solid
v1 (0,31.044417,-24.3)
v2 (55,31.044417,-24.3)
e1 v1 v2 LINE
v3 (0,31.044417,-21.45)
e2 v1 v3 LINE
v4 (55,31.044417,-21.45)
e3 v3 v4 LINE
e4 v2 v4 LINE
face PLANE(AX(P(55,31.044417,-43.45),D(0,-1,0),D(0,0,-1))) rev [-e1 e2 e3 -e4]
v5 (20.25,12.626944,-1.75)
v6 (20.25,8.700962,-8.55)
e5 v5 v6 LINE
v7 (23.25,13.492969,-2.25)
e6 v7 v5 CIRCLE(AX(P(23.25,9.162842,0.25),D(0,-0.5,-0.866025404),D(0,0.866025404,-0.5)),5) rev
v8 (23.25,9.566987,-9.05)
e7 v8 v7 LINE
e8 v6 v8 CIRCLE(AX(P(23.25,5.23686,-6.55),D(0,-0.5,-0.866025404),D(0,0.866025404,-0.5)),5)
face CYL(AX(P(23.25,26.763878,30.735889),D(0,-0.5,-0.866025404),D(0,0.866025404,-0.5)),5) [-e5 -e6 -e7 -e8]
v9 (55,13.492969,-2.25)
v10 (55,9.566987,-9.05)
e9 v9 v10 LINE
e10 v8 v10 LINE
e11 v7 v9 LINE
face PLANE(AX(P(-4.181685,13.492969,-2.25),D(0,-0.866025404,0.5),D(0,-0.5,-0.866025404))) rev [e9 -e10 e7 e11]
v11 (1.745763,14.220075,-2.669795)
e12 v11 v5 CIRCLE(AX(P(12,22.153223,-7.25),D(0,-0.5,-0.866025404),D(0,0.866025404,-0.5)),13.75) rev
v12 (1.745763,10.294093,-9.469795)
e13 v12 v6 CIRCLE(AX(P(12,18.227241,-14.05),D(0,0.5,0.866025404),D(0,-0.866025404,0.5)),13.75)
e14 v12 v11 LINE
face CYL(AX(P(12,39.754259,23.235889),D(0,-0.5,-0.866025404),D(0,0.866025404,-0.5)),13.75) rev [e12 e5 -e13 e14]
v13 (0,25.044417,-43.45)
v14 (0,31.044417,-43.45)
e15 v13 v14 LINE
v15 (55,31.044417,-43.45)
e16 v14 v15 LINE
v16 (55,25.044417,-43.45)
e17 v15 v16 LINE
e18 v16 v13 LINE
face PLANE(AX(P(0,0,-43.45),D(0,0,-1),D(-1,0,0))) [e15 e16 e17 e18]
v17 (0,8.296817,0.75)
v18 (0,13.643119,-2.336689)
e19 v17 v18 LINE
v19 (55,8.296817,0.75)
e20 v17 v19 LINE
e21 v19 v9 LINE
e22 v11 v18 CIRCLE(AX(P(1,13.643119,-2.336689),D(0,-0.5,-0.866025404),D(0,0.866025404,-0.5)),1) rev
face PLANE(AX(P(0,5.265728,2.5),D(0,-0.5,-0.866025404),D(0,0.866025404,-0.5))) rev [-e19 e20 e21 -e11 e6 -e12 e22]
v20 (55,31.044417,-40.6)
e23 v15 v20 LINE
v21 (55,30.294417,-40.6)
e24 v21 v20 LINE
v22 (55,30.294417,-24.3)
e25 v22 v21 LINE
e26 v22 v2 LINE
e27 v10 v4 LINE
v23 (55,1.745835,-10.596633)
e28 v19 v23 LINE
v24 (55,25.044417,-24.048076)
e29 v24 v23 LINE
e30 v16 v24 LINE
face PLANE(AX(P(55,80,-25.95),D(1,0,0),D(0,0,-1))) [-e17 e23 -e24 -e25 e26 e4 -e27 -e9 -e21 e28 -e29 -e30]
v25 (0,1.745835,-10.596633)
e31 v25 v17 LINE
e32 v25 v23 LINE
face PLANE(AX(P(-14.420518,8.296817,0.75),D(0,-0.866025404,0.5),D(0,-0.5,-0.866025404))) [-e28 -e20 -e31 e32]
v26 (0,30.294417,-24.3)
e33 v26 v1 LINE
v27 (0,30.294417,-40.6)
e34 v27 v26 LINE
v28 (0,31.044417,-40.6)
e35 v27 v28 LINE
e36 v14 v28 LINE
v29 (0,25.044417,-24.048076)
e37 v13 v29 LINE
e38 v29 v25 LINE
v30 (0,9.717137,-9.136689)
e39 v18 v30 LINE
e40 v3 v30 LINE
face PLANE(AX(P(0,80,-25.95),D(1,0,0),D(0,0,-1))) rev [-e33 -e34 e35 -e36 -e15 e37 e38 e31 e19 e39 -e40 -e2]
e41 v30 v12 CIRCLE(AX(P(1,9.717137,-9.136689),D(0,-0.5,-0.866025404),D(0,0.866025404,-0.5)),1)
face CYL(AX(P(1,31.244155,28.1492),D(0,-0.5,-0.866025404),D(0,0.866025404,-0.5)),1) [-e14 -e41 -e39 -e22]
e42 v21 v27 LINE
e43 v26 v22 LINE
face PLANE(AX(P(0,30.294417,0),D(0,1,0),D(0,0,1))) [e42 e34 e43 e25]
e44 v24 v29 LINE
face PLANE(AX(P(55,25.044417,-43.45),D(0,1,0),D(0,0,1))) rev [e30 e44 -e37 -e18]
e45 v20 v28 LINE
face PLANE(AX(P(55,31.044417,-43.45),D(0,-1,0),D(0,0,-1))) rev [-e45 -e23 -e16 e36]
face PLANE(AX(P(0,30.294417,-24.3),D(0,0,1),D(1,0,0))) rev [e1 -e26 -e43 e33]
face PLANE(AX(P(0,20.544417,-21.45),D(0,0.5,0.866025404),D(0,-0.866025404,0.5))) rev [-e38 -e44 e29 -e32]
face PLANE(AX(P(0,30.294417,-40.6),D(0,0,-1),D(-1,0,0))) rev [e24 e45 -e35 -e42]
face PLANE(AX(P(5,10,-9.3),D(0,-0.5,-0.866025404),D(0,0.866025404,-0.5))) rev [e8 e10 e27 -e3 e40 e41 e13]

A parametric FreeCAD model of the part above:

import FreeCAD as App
import Part
import Sketcher
Q = App.Units.Quantity


def edges_at(feature, points):
    """Names of the edges that pass closest to the given points."""
    edges = feature.Shape.Edges
    near = lambda p: min(range(len(edges)), key=lambda i: edges[i].distToShape(Part.Vertex(*p))[0])
    return sorted({f"Edge{near(p) + 1}" for p in points})

doc = App.newDocument("Part")
body = doc.addObject("PartDesign::Body", "Body")

# Sketch on XZ plane
sketch1 = doc.addObject("Sketcher::SketchObject", "Sketch")
body.addObject(sketch1)
sketch1.AttachmentSupport = (doc.XZ_Plane, [""])
sketch1.MapMode = "FlatFace"
sketch1.addGeometry([
    Part.LineSegment(App.Vector(55, -26, 0), App.Vector(0, -26, 0)),
    Part.LineSegment(App.Vector(0, -26, 0), App.Vector(0, 0, 0)),
    Part.LineSegment(App.Vector(0, 0, 0), App.Vector(55, 0, 0)),
    Part.LineSegment(App.Vector(55, 0, 0), App.Vector(55, -26, 0)),
], False)
sketch1.addConstraint([
    Sketcher.Constraint("Coincident", 0, 2, 1, 1),
    Sketcher.Constraint("Coincident", 1, 2, 2, 1),
    Sketcher.Constraint("Coincident", 2, 2, 3, 1),
    Sketcher.Constraint("Coincident", 3, 2, 0, 1),
    Sketcher.Constraint("Horizontal", 0),
    Sketcher.Constraint("Vertical", 1),
    Sketcher.Constraint("Horizontal", 2),
    Sketcher.Constraint("Vertical", 3),
    Sketcher.Constraint("Coincident", 1, 2, -1, 1),
    Sketcher.Constraint("DistanceX", 0, 2, 0, 1, 55.0),
    Sketcher.Constraint("DistanceY", 1, 1, 1, 2, 25.95),
])
pad1 = doc.addObject("PartDesign::Pad", "Pad")
body.addObject(pad1)
pad1.Profile = sketch1
pad1.Length = 80
pad1.Reversed = True

# Sketch on YZ plane
sketch2 = doc.addObject("Sketcher::SketchObject", "Sketch001")
body.addObject(sketch2)
sketch2.AttachmentSupport = (doc.YZ_Plane, [""])
sketch2.MapMode = "FlatFace"
sketch2.AttachmentOffset = App.Placement(App.Vector(0, 0, 55), App.Rotation())
sketch2.addGeometry([
    Part.LineSegment(App.Vector(147, 27, 0), App.Vector(60, 77, 0)),
    Part.LineSegment(App.Vector(60, 77, 0), App.Vector(10, -9, 0)),
    Part.LineSegment(App.Vector(10, -9, 0), App.Vector(97, -59, 0)),
    Part.LineSegment(App.Vector(97, -59, 0), App.Vector(147, 27, 0)),
], False)
sketch2.addConstraint([
    Sketcher.Constraint("Coincident", 0, 2, 1, 1),
    Sketcher.Constraint("Coincident", 1, 2, 2, 1),
    Sketcher.Constraint("Coincident", 2, 2, 3, 1),
    Sketcher.Constraint("Coincident", 3, 2, 0, 1),
    Sketcher.Constraint("Perpendicular", 0, 1),
    Sketcher.Constraint("Perpendicular", 1, 2),
    Sketcher.Constraint("Perpendicular", 2, 3),
    Sketcher.Constraint("Equal", 0, 1),
    Sketcher.Constraint("Angle", 0, Q("150 deg")),
    Sketcher.Constraint("Distance", 0, 100.0),
    Sketcher.Constraint("DistanceX", -1, 1, 0, 2, 60.0),
    Sketcher.Constraint("DistanceY", 1, 2, -1, 1, 9.3),
])
pocket1 = doc.addObject("PartDesign::Pocket", "Pocket")
body.addObject(pocket1)
pocket1.Profile = sketch2
pocket1.Length = 50

# Sketch on YZ plane
sketch3 = doc.addObject("Sketcher::SketchObject", "Sketch002")
body.addObject(sketch3)
sketch3.AttachmentSupport = (doc.YZ_Plane, [""])
sketch3.MapMode = "FlatFace"
sketch3.AttachmentOffset = App.Placement(App.Vector(0, 0, 55), App.Rotation())
sketch3.addGeometry([
    Part.LineSegment(App.Vector(19, 6, 0), App.Vector(10, 11, 0)),
    Part.LineSegment(App.Vector(10, 11, 0), App.Vector(5, 2, 0)),
    Part.LineSegment(App.Vector(5, 2, 0), App.Vector(14, -2, 0)),
    Part.LineSegment(App.Vector(14, -2, 0), App.Vector(19, 6, 0)),
], False)
sketch3.addConstraint([
    Sketcher.Constraint("Coincident", 0, 2, 1, 1),
    Sketcher.Constraint("Coincident", 1, 2, 2, 1),
    Sketcher.Constraint("Coincident", 2, 2, 3, 1),
    Sketcher.Constraint("Coincident", 3, 2, 0, 1),
    Sketcher.Constraint("Perpendicular", 0, 1),
    Sketcher.Constraint("Perpendicular", 1, 2),
    Sketcher.Constraint("Perpendicular", 2, 3),
    Sketcher.Constraint("Equal", 0, 1),
    Sketcher.Constraint("Angle", 0, Q("150 deg")),
    Sketcher.Constraint("Distance", 0, 10.0),
    Sketcher.Constraint("DistanceY", -1, 1, 1, 2, 2.5),
    Sketcher.Constraint("DistanceX", -1, 1, 2, 2, 13.925982),
])
pocket2 = doc.addObject("PartDesign::Pocket", "Pocket001")
body.addObject(pocket2)
pocket2.Profile = sketch3
pocket2.Type = "ThroughAll"

# Sketch on YZ plane
sketch4 = doc.addObject("Sketcher::SketchObject", "Sketch003")
body.addObject(sketch4)
sketch4.AttachmentSupport = (doc.YZ_Plane, [""])
sketch4.MapMode = "FlatFace"
sketch4.AttachmentOffset = App.Placement(App.Vector(0, 0, 55), App.Rotation())
sketch4.addGeometry([
    Part.LineSegment(App.Vector(13.9, -2.5, 0), App.Vector(10, -9.3, 0)),
    Part.LineSegment(App.Vector(10, -9.3, 0), App.Vector(10.9, -9.8, 0)),
    Part.LineSegment(App.Vector(10.9, -9.8, 0), App.Vector(14.8, -3, 0)),
    Part.LineSegment(App.Vector(14.8, -3, 0), App.Vector(13.9, -2.5, 0)),
], False)
sketch4.addConstraint([
    Sketcher.Constraint("Coincident", 0, 2, 1, 1),
    Sketcher.Constraint("Coincident", 1, 2, 2, 1),
    Sketcher.Constraint("Coincident", 2, 2, 3, 1),
    Sketcher.Constraint("Coincident", 3, 2, 0, 1),
    Sketcher.Constraint("Perpendicular", 0, 1),
    Sketcher.Constraint("Perpendicular", 1, 2),
    Sketcher.Constraint("Perpendicular", 2, 3),
    Sketcher.Constraint("Angle", 0, Q("-120 deg")),
    Sketcher.Constraint("Distance", 1, 1.0),
    Sketcher.Constraint("DistanceX", -1, 1, 0, 2, 10.0),
    Sketcher.Constraint("DistanceY", 2, 2, -1, 1, 3.0),
    Sketcher.Constraint("DistanceY", 0, 2, -1, 1, 9.3),
])
pad2 = doc.addObject("PartDesign::Pad", "Pad001")
body.addObject(pad2)
pad2.Profile = sketch4
pad2.Type = "UpToFirst"
pad2.Reversed = True

# Sketch on YZ plane
sketch5 = doc.addObject("Sketcher::SketchObject", "Sketch004")
body.addObject(sketch5)
sketch5.AttachmentSupport = (doc.YZ_Plane, [""])
sketch5.MapMode = "FlatFace"
sketch5.AttachmentOffset = App.Placement(App.Vector(0, 0, 55), App.Rotation())
sketch5.addGeometry([
    Part.LineSegment(App.Vector(14.8, -3, 0), App.Vector(13.5, -2.2, 0)),
    Part.LineSegment(App.Vector(13.5, -2.2, 0), App.Vector(9.6, -9.1, 0)),
    Part.LineSegment(App.Vector(9.6, -9.1, 0), App.Vector(10.9, -9.8, 0)),
    Part.LineSegment(App.Vector(10.9, -9.8, 0), App.Vector(14.8, -3, 0)),
], False)
sketch5.addConstraint([
    Sketcher.Constraint("Coincident", 0, 2, 1, 1),
    Sketcher.Constraint("Coincident", 1, 2, 2, 1),
    Sketcher.Constraint("Coincident", 2, 2, 3, 1),
    Sketcher.Constraint("Coincident", 3, 2, 0, 1),
    Sketcher.Constraint("Perpendicular", 0, 1),
    Sketcher.Constraint("Perpendicular", 1, 2),
    Sketcher.Constraint("Perpendicular", 2, 3),
    Sketcher.Constraint("Angle", 0, Q("150 deg")),
    Sketcher.Constraint("DistanceY", 3, 2, -1, 1, 3.0),
    Sketcher.Constraint("Distance", 0, 1.5),
    Sketcher.Constraint("DistanceY", 2, 2, -1, 1, 9.8),
    Sketcher.Constraint("DistanceX", -1, 1, 0, 2, 13.492969),
])
pocket3 = doc.addObject("PartDesign::Pocket", "Pocket002")
body.addObject(pocket3)
pocket3.Profile = sketch5
pocket3.Length = 50

# Sketch on an angled plane
sketch6 = doc.addObject("Sketcher::SketchObject", "Sketch005")
body.addObject(sketch6)
sketch6.Placement = App.Placement(App.Vector(0, -1.527018, -2.644873), App.Rotation(App.Vector(1, 0, 0), App.Vector(0, 0.866025404, -0.5), App.Vector(0, 0.5, 0.866025404), "ZXY"))
sketch6.addGeometry(Part.Circle(App.Vector(12, 23, 0), App.Vector(0, 0, 1), 14), False)
sketch6.addConstraint([
    Sketcher.Constraint("Diameter", 0, 27.5),
    Sketcher.Constraint("DistanceX", -1, 1, 0, 3, 12.0),
    Sketcher.Constraint("DistanceY", -1, 1, 0, 3, 22.810254),
])
pocket4 = doc.addObject("PartDesign::Pocket", "Pocket003")
body.addObject(pocket4)
pocket4.Profile = sketch6
pocket4.Type = "ThroughAll"
pocket4.Reversed = True

# Sketch on YZ plane
sketch7 = doc.addObject("Sketcher::SketchObject", "Sketch006")
body.addObject(sketch7)
sketch7.AttachmentSupport = (doc.YZ_Plane, [""])
sketch7.MapMode = "FlatFace"
sketch7.AttachmentOffset = App.Placement(App.Vector(0, 0, 55), App.Rotation())
sketch7.addGeometry([
    Part.LineSegment(App.Vector(10, 0, 0), App.Vector(16, -4, 0)),  # 0
    Part.LineSegment(App.Vector(16, -4, 0), App.Vector(12, -11, 0)),  # 1
    Part.LineSegment(App.Vector(12, -11, 0), App.Vector(110, -67, 0)),  # 2
    Part.LineSegment(App.Vector(110, -67, 0), App.Vector(110, 0, 0)),  # 3
    Part.LineSegment(App.Vector(110, 0, 0), App.Vector(10, 0, 0)),  # 4
], False)
sketch7.addConstraint([
    Sketcher.Constraint("Coincident", 0, 2, 1, 1),
    Sketcher.Constraint("Coincident", 1, 2, 2, 1),
    Sketcher.Constraint("Coincident", 2, 2, 3, 1),
    Sketcher.Constraint("Coincident", 3, 2, 4, 1),
    Sketcher.Constraint("Coincident", 4, 2, 0, 1),
    Sketcher.Constraint("Vertical", 3),
    Sketcher.Constraint("Horizontal", 4),
    Sketcher.Constraint("PointOnObject", 3, 2, -1),
    Sketcher.Constraint("Perpendicular", 0, 1),
    Sketcher.Constraint("Perpendicular", 1, 2),
    Sketcher.Constraint("DistanceX", 4, 2, 4, 1, 100.0),
    Sketcher.Constraint("Angle", 0, Q("-30 deg")),
    Sketcher.Constraint("DistanceY", 1, 2, 0, 2, 6.8),
    Sketcher.Constraint("Distance", 0, 7.787139),
    Sketcher.Constraint("DistanceX", -1, 1, 0, 2, 16.339715),
])
pocket5 = doc.addObject("PartDesign::Pocket", "Pocket004")
body.addObject(pocket5)
pocket5.Profile = sketch7
pocket5.Type = "ThroughAll"

# Sketch on XZ plane
sketch8 = doc.addObject("Sketcher::SketchObject", "Sketch007")
body.addObject(sketch8)
sketch8.AttachmentSupport = (doc.XZ_Plane, [""])
sketch8.MapMode = "FlatFace"
sketch8.addGeometry(Part.Circle(App.Vector(26, -27, 0), App.Vector(0, 0, 1), 6), False)
sketch8.addConstraint([
    Sketcher.Constraint("Diameter", 0, 12.0),
    Sketcher.Constraint("DistanceX", -1, 1, 0, 3, 25.75),
    Sketcher.Constraint("DistanceY", 0, 3, -1, 1, 27.45),
])
pocket6 = doc.addObject("PartDesign::Pocket", "Pocket005")
body.addObject(pocket6)
pocket6.Profile = sketch8
pocket6.Type = "ThroughAll"

# Sketch on YZ plane
sketch9 = doc.addObject("Sketcher::SketchObject", "Sketch008")
body.addObject(sketch9)
sketch9.AttachmentSupport = (doc.YZ_Plane, [""])
sketch9.MapMode = "FlatFace"
sketch9.AttachmentOffset = App.Placement(App.Vector(0, 0, 55), App.Rotation())
sketch9.addGeometry([
    Part.LineSegment(App.Vector(31, -21.4, 0), App.Vector(31, -25.9, 0)),
    Part.LineSegment(App.Vector(31, -25.9, 0), App.Vector(38.8, -25.9, 0)),
    Part.LineSegment(App.Vector(38.8, -25.9, 0), App.Vector(31, -21.4, 0)),
], False)
sketch9.addConstraint([
    Sketcher.Constraint("Coincident", 0, 2, 1, 1),
    Sketcher.Constraint("Coincident", 1, 2, 2, 1),
    Sketcher.Constraint("Coincident", 2, 2, 0, 1),
    Sketcher.Constraint("Vertical", 0),
    Sketcher.Constraint("Horizontal", 1),
    Sketcher.Constraint("Angle", 2, Q("150 deg")),
    Sketcher.Constraint("Distance", 2, 9.0),
    Sketcher.Constraint("DistanceY", 0, 2, -1, 1, 25.95),
    Sketcher.Constraint("DistanceX", -1, 1, 0, 2, 31.044417),
])
pocket7 = doc.addObject("PartDesign::Pocket", "Pocket006")
body.addObject(pocket7)
pocket7.Profile = sketch9
pocket7.Type = "ThroughAll"

# Sketch on XZ plane
sketch10 = doc.addObject("Sketcher::SketchObject", "Sketch009")
body.addObject(sketch10)
sketch10.AttachmentSupport = (doc.XZ_Plane, [""])
sketch10.MapMode = "FlatFace"
sketch10.addGeometry([
    Part.LineSegment(App.Vector(0, -21.4, 0), App.Vector(55, -21.4, 0)),
    Part.LineSegment(App.Vector(55, -21.4, 0), App.Vector(55, -25.9, 0)),
    Part.LineSegment(App.Vector(55, -25.9, 0), App.Vector(0, -25.9, 0)),
    Part.LineSegment(App.Vector(0, -25.9, 0), App.Vector(0, -21.4, 0)),
], False)
sketch10.addConstraint([
    Sketcher.Constraint("Coincident", 0, 2, 1, 1),
    Sketcher.Constraint("Coincident", 1, 2, 2, 1),
    Sketcher.Constraint("Coincident", 2, 2, 3, 1),
    Sketcher.Constraint("Coincident", 3, 2, 0, 1),
    Sketcher.Constraint("Horizontal", 0),
    Sketcher.Constraint("Vertical", 1),
    Sketcher.Constraint("Horizontal", 2),
    Sketcher.Constraint("Vertical", 3),
    Sketcher.Constraint("PointOnObject", 2, 2, -2),
    Sketcher.Constraint("DistanceX", 0, 1, 0, 2, 55.0),
    Sketcher.Constraint("DistanceY", 1, 2, 1, 1, 4.5),
    Sketcher.Constraint("DistanceY", 0, 2, -1, 1, 21.45),
])
pocket8 = doc.addObject("PartDesign::Pocket", "Pocket007")
body.addObject(pocket8)
pocket8.Profile = sketch10
pocket8.Type = "ThroughAll"
doc.recompute()

fillet = doc.addObject("PartDesign::Fillet", "Fillet")
body.addObject(fillet)
fillet.Base = (pocket8, edges_at(pocket8, [(0, 14.377, -7.294)]))
fillet.Radius = 1
doc.recompute()

fillet2 = doc.addObject("PartDesign::Fillet", "Fillet001")
body.addObject(fillet2)
fillet2.Base = (fillet, edges_at(fillet, [(21.437, 11.53, -5.65)]))
fillet2.Radius = 5

# Sketch on YZ plane
sketch11 = doc.addObject("Sketcher::SketchObject", "Sketch010")
body.addObject(sketch11)
sketch11.AttachmentSupport = (doc.YZ_Plane, [""])
sketch11.MapMode = "FlatFace"
sketch11.AttachmentOffset = App.Placement(App.Vector(0, 0, 55), App.Rotation())
sketch11.addGeometry([
    Part.LineSegment(App.Vector(21, -21, 0), App.Vector(3, -11, 0)),  # 0
    Part.LineSegment(App.Vector(3, -11, 0), App.Vector(10, 0, 0)),  # 1
    Part.LineSegment(App.Vector(10, 0, 0), App.Vector(0, 0, 0)),  # 2
    Part.LineSegment(App.Vector(0, 0, 0), App.Vector(0, -21, 0)),  # 3
    Part.LineSegment(App.Vector(0, -21, 0), App.Vector(21, -21, 0)),  # 4
], False)
sketch11.addConstraint([
    Sketcher.Constraint("Coincident", 0, 2, 1, 1),
    Sketcher.Constraint("Coincident", 1, 2, 2, 1),
    Sketcher.Constraint("Coincident", 2, 2, 3, 1),
    Sketcher.Constraint("Coincident", 3, 2, 4, 1),
    Sketcher.Constraint("Coincident", 4, 2, 0, 1),
    Sketcher.Constraint("Horizontal", 2),
    Sketcher.Constraint("Vertical", 3),
    Sketcher.Constraint("Horizontal", 4),
    Sketcher.Constraint("Coincident", 2, 2, -1, 1),
    Sketcher.Constraint("Perpendicular", 0, 1),
    Sketcher.Constraint("Angle", 0, Q("150 deg")),
    Sketcher.Constraint("DistanceY", 3, 2, 3, 1, 21.45),
    Sketcher.Constraint("DistanceX", 2, 2, 2, 1, 9.595855),
    Sketcher.Constraint("DistanceX", 4, 1, 4, 2, 20.544417),
])
pocket9 = doc.addObject("PartDesign::Pocket", "Pocket008")
body.addObject(pocket9)
pocket9.Profile = sketch11
pocket9.Type = "ThroughAll"

# Sketch on XY plane
sketch12 = doc.addObject("Sketcher::SketchObject", "Sketch011")
body.addObject(sketch12)
sketch12.AttachmentSupport = (doc.XY_Plane, [""])
sketch12.MapMode = "FlatFace"
sketch12.AttachmentOffset = App.Placement(App.Vector(0, 0, -21.45), App.Rotation())
sketch12.addGeometry([
    Part.LineSegment(App.Vector(0, 31, 0), App.Vector(55, 31, 0)),
    Part.LineSegment(App.Vector(55, 31, 0), App.Vector(55, 25, 0)),
    Part.LineSegment(App.Vector(55, 25, 0), App.Vector(0, 25, 0)),
    Part.LineSegment(App.Vector(0, 25, 0), App.Vector(0, 31, 0)),
], False)
sketch12.addConstraint([
    Sketcher.Constraint("Coincident", 0, 2, 1, 1),
    Sketcher.Constraint("Coincident", 1, 2, 2, 1),
    Sketcher.Constraint("Coincident", 2, 2, 3, 1),
    Sketcher.Constraint("Coincident", 3, 2, 0, 1),
    Sketcher.Constraint("Horizontal", 0),
    Sketcher.Constraint("Vertical", 1),
    Sketcher.Constraint("Horizontal", 2),
    Sketcher.Constraint("Vertical", 3),
    Sketcher.Constraint("PointOnObject", 2, 2, -2),
    Sketcher.Constraint("DistanceX", 0, 1, 0, 2, 55.0),
    Sketcher.Constraint("DistanceY", 1, 2, 1, 1, 6.0),
    Sketcher.Constraint("DistanceY", -1, 1, 0, 2, 31.044417),
])
pad3 = doc.addObject("PartDesign::Pad", "Pad002")
body.addObject(pad3)
pad3.Profile = sketch12
pad3.Length = 22
pad3.Reversed = True

# Sketch on YZ plane
sketch13 = doc.addObject("Sketcher::SketchObject", "Sketch012")
body.addObject(sketch13)
sketch13.AttachmentSupport = (doc.YZ_Plane, [""])
sketch13.MapMode = "FlatFace"
sketch13.AttachmentOffset = App.Placement(App.Vector(0, 0, 55), App.Rotation())
sketch13.addGeometry([
    Part.LineSegment(App.Vector(12, -16, 0), App.Vector(31, -28, 0)),
    Part.LineSegment(App.Vector(31, -28, 0), App.Vector(31, -21, 0)),
    Part.LineSegment(App.Vector(31, -21, 0), App.Vector(14, -12, 0)),
    Part.LineSegment(App.Vector(14, -12, 0), App.Vector(12, -16, 0)),
], False)
sketch13.addConstraint([
    Sketcher.Constraint("Coincident", 0, 2, 1, 1),
    Sketcher.Constraint("Coincident", 1, 2, 2, 1),
    Sketcher.Constraint("Coincident", 2, 2, 3, 1),
    Sketcher.Constraint("Coincident", 3, 2, 0, 1),
    Sketcher.Constraint("Vertical", 1),
    Sketcher.Constraint("Parallel", 0, 2),
    Sketcher.Constraint("Perpendicular", 2, 3),
    Sketcher.Constraint("Angle", 0, Q("-30 deg")),
    Sketcher.Constraint("Distance", 3, 5.25),
    Sketcher.Constraint("DistanceY", 1, 2, -1, 1, 21.45),
    Sketcher.Constraint("DistanceY", 0, 2, 3, 2, 11.113861),
    Sketcher.Constraint("DistanceX", -1, 1, 0, 2, 31.044417),
])
pad4 = doc.addObject("PartDesign::Pad", "Pad003")
body.addObject(pad4)
pad4.Profile = sketch13
pad4.Length = 55
pad4.Reversed = True

# Sketch on XZ plane
sketch14 = doc.addObject("Sketcher::SketchObject", "Sketch013")
body.addObject(sketch14)
sketch14.AttachmentSupport = (doc.XZ_Plane, [""])
sketch14.MapMode = "FlatFace"
sketch14.AttachmentOffset = App.Placement(App.Vector(0, 0, -31.044417), App.Rotation())
sketch14.addGeometry([
    Part.LineSegment(App.Vector(55, -41, 0), App.Vector(0, -41, 0)),
    Part.LineSegment(App.Vector(0, -41, 0), App.Vector(0, -24, 0)),
    Part.LineSegment(App.Vector(0, -24, 0), App.Vector(55, -24, 0)),
    Part.LineSegment(App.Vector(55, -24, 0), App.Vector(55, -41, 0)),
], False)
sketch14.addConstraint([
    Sketcher.Constraint("Coincident", 0, 2, 1, 1),
    Sketcher.Constraint("Coincident", 1, 2, 2, 1),
    Sketcher.Constraint("Coincident", 2, 2, 3, 1),
    Sketcher.Constraint("Coincident", 3, 2, 0, 1),
    Sketcher.Constraint("Horizontal", 0),
    Sketcher.Constraint("Vertical", 1),
    Sketcher.Constraint("Horizontal", 2),
    Sketcher.Constraint("Vertical", 3),
    Sketcher.Constraint("PointOnObject", 0, 2, -2),
    Sketcher.Constraint("DistanceX", 0, 2, 0, 1, 55.0),
    Sketcher.Constraint("DistanceY", 1, 1, 1, 2, 16.3),
    Sketcher.Constraint("DistanceY", 0, 2, -1, 1, 40.6),
])
pocket10 = doc.addObject("PartDesign::Pocket", "Pocket009")
body.addObject(pocket10)
pocket10.Profile = sketch14
pocket10.Length = 0.75
pocket10.Reversed = True

# Sketch on YZ plane
sketch15 = doc.addObject("Sketcher::SketchObject", "Sketch014")
body.addObject(sketch15)
sketch15.AttachmentSupport = (doc.YZ_Plane, [""])
sketch15.MapMode = "FlatFace"
sketch15.AttachmentOffset = App.Placement(App.Vector(0, 0, 55), App.Rotation())
sketch15.addGeometry([
    Part.LineSegment(App.Vector(9.6, 0, 0), App.Vector(8.3, 0.8, 0)),
    Part.LineSegment(App.Vector(8.3, 0.8, 0), App.Vector(1.7, -10.6, 0)),
    Part.LineSegment(App.Vector(1.7, -10.6, 0), App.Vector(3, -11.3, 0)),
    Part.LineSegment(App.Vector(3, -11.3, 0), App.Vector(9.6, 0, 0)),
], False)
sketch15.addConstraint([
    Sketcher.Constraint("Coincident", 0, 2, 1, 1),
    Sketcher.Constraint("Coincident", 1, 2, 2, 1),
    Sketcher.Constraint("Coincident", 2, 2, 3, 1),
    Sketcher.Constraint("Coincident", 3, 2, 0, 1),
    Sketcher.Constraint("PointOnObject", 3, 2, -1),
    Sketcher.Constraint("Perpendicular", 0, 1),
    Sketcher.Constraint("Perpendicular", 1, 2),
    Sketcher.Constraint("Perpendicular", 2, 3),
    Sketcher.Constraint("Angle", 0, Q("150 deg")),
    Sketcher.Constraint("Distance", 0, 1.5),
    Sketcher.Constraint("DistanceX", 1, 2, 0, 2, 6.550982),
    Sketcher.Constraint("DistanceX", -1, 1, 0, 2, 8.296817),
])
pad5 = doc.addObject("PartDesign::Pad", "Pad004")
body.addObject(pad5)
pad5.Profile = sketch15
pad5.Length = 55
pad5.Reversed = True

doc.recompute()
